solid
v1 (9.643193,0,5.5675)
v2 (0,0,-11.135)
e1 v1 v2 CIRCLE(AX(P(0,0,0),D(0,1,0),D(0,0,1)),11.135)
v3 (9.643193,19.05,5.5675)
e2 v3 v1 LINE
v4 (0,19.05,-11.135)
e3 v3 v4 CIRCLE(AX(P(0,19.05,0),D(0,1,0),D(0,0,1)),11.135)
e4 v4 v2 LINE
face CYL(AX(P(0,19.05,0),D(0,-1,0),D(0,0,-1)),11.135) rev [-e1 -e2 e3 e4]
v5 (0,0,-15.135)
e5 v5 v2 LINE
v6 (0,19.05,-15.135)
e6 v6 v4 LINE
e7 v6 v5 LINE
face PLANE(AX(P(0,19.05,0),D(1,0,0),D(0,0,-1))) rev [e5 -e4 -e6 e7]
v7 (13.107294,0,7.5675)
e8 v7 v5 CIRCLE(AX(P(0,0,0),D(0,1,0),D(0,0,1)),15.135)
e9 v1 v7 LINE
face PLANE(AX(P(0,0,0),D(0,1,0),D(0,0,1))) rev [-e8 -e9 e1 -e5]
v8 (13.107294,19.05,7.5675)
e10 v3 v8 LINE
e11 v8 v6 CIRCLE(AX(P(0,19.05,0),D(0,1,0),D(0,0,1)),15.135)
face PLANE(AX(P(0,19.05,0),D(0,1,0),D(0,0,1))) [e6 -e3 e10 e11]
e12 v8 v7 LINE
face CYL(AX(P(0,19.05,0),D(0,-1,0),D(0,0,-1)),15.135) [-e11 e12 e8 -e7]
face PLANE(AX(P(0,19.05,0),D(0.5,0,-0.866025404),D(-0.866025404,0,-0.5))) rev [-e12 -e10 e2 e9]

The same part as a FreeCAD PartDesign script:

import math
import FreeCAD as App
import Part
import Sketcher
Q = App.Units.Quantity

doc = App.newDocument("Part")
body = doc.addObject("PartDesign::Body", "Body")

# Sketch on XZ plane
sketch1 = doc.addObject("Sketcher::SketchObject", "Sketch")
body.addObject(sketch1)
sketch1.AttachmentSupport = (doc.XZ_Plane, [""])
sketch1.MapMode = "FlatFace"
sketch1.addGeometry(Part.ArcOfCircle(Part.Circle(App.Vector(0, 0, 0), App.Vector(0, 0, 1), 15.1), math.radians(-90), math.radians(0)), False)
sketch1.addGeometry(Part.LineSegment(App.Vector(0, -15.1, 0), App.Vector(0, -11.1, 0)), False)
sketch1.addGeometry(Part.ArcOfCircle(Part.Circle(App.Vector(0, 0, 0), App.Vector(0, 0, 1), 11.1), math.radians(-90), math.radians(0)), False)
sketch1.addGeometry(Part.ArcOfCircle(Part.Circle(App.Vector(0, 0, 0), App.Vector(0, 0, 1), 11.1), math.radians(0), math.radians(30)), False)
sketch1.addGeometry(Part.LineSegment(App.Vector(9.6, 5.6, 0), App.Vector(13.1, 7.6, 0)), False)
sketch1.addGeometry(Part.ArcOfCircle(Part.Circle(App.Vector(0, 0, 0), App.Vector(0, 0, 1), 15.1), math.radians(0), math.radians(30)), False)
sketch1.addConstraint(Sketcher.Constraint("Coincident", 0, 1, 1, 1))
sketch1.addConstraint(Sketcher.Constraint("Coincident", 1, 2, 2, 1))
sketch1.addConstraint(Sketcher.Constraint("Tangent", 2, 2, 3, 1))
sketch1.addConstraint(Sketcher.Constraint("Coincident", 3, 2, 4, 1))
sketch1.addConstraint(Sketcher.Constraint("Coincident", 4, 2, 5, 2))
sketch1.addConstraint(Sketcher.Constraint("Tangent", 5, 1, 0, 2))
sketch1.addConstraint(Sketcher.Constraint("Vertical", 1))
sketch1.addConstraint(Sketcher.Constraint("Coincident", 0, 3, -1, 1))
sketch1.addConstraint(Sketcher.Constraint("Coincident", 2, 3, -1, 1))
sketch1.addConstraint(Sketcher.Constraint("Equal", 2, 3))
sketch1.addConstraint(Sketcher.Constraint("Equal", 0, 5))
sketch1.addConstraint(Sketcher.Constraint("PointOnObject", 0, 1, -2))
sketch1.addConstraint(Sketcher.Constraint("PointOnObject", 2, 2, -1))
sketch1.addConstraint(Sketcher.Constraint("PointOnObject", 5, 1, -1))
sketch1.addConstraint(Sketcher.Constraint("DistanceY", 1, 1, 1, 2, Q("4 mm")))
sketch1.addConstraint(Sketcher.Constraint("Angle", 4, Q("30 deg")))
sketch1.addConstraint(Sketcher.Constraint("Radius", 0, Q("15.135 mm")))
sketch1.addConstraint(Sketcher.Constraint("DistanceY", -1, 1, 3, 2, Q("5.5675 mm")))
pad1 = doc.addObject("PartDesign::Pad", "Pad")
body.addObject(pad1)
pad1.Profile = sketch1
pad1.Length = 19.05
pad1.Reversed = True

doc.recompute()
